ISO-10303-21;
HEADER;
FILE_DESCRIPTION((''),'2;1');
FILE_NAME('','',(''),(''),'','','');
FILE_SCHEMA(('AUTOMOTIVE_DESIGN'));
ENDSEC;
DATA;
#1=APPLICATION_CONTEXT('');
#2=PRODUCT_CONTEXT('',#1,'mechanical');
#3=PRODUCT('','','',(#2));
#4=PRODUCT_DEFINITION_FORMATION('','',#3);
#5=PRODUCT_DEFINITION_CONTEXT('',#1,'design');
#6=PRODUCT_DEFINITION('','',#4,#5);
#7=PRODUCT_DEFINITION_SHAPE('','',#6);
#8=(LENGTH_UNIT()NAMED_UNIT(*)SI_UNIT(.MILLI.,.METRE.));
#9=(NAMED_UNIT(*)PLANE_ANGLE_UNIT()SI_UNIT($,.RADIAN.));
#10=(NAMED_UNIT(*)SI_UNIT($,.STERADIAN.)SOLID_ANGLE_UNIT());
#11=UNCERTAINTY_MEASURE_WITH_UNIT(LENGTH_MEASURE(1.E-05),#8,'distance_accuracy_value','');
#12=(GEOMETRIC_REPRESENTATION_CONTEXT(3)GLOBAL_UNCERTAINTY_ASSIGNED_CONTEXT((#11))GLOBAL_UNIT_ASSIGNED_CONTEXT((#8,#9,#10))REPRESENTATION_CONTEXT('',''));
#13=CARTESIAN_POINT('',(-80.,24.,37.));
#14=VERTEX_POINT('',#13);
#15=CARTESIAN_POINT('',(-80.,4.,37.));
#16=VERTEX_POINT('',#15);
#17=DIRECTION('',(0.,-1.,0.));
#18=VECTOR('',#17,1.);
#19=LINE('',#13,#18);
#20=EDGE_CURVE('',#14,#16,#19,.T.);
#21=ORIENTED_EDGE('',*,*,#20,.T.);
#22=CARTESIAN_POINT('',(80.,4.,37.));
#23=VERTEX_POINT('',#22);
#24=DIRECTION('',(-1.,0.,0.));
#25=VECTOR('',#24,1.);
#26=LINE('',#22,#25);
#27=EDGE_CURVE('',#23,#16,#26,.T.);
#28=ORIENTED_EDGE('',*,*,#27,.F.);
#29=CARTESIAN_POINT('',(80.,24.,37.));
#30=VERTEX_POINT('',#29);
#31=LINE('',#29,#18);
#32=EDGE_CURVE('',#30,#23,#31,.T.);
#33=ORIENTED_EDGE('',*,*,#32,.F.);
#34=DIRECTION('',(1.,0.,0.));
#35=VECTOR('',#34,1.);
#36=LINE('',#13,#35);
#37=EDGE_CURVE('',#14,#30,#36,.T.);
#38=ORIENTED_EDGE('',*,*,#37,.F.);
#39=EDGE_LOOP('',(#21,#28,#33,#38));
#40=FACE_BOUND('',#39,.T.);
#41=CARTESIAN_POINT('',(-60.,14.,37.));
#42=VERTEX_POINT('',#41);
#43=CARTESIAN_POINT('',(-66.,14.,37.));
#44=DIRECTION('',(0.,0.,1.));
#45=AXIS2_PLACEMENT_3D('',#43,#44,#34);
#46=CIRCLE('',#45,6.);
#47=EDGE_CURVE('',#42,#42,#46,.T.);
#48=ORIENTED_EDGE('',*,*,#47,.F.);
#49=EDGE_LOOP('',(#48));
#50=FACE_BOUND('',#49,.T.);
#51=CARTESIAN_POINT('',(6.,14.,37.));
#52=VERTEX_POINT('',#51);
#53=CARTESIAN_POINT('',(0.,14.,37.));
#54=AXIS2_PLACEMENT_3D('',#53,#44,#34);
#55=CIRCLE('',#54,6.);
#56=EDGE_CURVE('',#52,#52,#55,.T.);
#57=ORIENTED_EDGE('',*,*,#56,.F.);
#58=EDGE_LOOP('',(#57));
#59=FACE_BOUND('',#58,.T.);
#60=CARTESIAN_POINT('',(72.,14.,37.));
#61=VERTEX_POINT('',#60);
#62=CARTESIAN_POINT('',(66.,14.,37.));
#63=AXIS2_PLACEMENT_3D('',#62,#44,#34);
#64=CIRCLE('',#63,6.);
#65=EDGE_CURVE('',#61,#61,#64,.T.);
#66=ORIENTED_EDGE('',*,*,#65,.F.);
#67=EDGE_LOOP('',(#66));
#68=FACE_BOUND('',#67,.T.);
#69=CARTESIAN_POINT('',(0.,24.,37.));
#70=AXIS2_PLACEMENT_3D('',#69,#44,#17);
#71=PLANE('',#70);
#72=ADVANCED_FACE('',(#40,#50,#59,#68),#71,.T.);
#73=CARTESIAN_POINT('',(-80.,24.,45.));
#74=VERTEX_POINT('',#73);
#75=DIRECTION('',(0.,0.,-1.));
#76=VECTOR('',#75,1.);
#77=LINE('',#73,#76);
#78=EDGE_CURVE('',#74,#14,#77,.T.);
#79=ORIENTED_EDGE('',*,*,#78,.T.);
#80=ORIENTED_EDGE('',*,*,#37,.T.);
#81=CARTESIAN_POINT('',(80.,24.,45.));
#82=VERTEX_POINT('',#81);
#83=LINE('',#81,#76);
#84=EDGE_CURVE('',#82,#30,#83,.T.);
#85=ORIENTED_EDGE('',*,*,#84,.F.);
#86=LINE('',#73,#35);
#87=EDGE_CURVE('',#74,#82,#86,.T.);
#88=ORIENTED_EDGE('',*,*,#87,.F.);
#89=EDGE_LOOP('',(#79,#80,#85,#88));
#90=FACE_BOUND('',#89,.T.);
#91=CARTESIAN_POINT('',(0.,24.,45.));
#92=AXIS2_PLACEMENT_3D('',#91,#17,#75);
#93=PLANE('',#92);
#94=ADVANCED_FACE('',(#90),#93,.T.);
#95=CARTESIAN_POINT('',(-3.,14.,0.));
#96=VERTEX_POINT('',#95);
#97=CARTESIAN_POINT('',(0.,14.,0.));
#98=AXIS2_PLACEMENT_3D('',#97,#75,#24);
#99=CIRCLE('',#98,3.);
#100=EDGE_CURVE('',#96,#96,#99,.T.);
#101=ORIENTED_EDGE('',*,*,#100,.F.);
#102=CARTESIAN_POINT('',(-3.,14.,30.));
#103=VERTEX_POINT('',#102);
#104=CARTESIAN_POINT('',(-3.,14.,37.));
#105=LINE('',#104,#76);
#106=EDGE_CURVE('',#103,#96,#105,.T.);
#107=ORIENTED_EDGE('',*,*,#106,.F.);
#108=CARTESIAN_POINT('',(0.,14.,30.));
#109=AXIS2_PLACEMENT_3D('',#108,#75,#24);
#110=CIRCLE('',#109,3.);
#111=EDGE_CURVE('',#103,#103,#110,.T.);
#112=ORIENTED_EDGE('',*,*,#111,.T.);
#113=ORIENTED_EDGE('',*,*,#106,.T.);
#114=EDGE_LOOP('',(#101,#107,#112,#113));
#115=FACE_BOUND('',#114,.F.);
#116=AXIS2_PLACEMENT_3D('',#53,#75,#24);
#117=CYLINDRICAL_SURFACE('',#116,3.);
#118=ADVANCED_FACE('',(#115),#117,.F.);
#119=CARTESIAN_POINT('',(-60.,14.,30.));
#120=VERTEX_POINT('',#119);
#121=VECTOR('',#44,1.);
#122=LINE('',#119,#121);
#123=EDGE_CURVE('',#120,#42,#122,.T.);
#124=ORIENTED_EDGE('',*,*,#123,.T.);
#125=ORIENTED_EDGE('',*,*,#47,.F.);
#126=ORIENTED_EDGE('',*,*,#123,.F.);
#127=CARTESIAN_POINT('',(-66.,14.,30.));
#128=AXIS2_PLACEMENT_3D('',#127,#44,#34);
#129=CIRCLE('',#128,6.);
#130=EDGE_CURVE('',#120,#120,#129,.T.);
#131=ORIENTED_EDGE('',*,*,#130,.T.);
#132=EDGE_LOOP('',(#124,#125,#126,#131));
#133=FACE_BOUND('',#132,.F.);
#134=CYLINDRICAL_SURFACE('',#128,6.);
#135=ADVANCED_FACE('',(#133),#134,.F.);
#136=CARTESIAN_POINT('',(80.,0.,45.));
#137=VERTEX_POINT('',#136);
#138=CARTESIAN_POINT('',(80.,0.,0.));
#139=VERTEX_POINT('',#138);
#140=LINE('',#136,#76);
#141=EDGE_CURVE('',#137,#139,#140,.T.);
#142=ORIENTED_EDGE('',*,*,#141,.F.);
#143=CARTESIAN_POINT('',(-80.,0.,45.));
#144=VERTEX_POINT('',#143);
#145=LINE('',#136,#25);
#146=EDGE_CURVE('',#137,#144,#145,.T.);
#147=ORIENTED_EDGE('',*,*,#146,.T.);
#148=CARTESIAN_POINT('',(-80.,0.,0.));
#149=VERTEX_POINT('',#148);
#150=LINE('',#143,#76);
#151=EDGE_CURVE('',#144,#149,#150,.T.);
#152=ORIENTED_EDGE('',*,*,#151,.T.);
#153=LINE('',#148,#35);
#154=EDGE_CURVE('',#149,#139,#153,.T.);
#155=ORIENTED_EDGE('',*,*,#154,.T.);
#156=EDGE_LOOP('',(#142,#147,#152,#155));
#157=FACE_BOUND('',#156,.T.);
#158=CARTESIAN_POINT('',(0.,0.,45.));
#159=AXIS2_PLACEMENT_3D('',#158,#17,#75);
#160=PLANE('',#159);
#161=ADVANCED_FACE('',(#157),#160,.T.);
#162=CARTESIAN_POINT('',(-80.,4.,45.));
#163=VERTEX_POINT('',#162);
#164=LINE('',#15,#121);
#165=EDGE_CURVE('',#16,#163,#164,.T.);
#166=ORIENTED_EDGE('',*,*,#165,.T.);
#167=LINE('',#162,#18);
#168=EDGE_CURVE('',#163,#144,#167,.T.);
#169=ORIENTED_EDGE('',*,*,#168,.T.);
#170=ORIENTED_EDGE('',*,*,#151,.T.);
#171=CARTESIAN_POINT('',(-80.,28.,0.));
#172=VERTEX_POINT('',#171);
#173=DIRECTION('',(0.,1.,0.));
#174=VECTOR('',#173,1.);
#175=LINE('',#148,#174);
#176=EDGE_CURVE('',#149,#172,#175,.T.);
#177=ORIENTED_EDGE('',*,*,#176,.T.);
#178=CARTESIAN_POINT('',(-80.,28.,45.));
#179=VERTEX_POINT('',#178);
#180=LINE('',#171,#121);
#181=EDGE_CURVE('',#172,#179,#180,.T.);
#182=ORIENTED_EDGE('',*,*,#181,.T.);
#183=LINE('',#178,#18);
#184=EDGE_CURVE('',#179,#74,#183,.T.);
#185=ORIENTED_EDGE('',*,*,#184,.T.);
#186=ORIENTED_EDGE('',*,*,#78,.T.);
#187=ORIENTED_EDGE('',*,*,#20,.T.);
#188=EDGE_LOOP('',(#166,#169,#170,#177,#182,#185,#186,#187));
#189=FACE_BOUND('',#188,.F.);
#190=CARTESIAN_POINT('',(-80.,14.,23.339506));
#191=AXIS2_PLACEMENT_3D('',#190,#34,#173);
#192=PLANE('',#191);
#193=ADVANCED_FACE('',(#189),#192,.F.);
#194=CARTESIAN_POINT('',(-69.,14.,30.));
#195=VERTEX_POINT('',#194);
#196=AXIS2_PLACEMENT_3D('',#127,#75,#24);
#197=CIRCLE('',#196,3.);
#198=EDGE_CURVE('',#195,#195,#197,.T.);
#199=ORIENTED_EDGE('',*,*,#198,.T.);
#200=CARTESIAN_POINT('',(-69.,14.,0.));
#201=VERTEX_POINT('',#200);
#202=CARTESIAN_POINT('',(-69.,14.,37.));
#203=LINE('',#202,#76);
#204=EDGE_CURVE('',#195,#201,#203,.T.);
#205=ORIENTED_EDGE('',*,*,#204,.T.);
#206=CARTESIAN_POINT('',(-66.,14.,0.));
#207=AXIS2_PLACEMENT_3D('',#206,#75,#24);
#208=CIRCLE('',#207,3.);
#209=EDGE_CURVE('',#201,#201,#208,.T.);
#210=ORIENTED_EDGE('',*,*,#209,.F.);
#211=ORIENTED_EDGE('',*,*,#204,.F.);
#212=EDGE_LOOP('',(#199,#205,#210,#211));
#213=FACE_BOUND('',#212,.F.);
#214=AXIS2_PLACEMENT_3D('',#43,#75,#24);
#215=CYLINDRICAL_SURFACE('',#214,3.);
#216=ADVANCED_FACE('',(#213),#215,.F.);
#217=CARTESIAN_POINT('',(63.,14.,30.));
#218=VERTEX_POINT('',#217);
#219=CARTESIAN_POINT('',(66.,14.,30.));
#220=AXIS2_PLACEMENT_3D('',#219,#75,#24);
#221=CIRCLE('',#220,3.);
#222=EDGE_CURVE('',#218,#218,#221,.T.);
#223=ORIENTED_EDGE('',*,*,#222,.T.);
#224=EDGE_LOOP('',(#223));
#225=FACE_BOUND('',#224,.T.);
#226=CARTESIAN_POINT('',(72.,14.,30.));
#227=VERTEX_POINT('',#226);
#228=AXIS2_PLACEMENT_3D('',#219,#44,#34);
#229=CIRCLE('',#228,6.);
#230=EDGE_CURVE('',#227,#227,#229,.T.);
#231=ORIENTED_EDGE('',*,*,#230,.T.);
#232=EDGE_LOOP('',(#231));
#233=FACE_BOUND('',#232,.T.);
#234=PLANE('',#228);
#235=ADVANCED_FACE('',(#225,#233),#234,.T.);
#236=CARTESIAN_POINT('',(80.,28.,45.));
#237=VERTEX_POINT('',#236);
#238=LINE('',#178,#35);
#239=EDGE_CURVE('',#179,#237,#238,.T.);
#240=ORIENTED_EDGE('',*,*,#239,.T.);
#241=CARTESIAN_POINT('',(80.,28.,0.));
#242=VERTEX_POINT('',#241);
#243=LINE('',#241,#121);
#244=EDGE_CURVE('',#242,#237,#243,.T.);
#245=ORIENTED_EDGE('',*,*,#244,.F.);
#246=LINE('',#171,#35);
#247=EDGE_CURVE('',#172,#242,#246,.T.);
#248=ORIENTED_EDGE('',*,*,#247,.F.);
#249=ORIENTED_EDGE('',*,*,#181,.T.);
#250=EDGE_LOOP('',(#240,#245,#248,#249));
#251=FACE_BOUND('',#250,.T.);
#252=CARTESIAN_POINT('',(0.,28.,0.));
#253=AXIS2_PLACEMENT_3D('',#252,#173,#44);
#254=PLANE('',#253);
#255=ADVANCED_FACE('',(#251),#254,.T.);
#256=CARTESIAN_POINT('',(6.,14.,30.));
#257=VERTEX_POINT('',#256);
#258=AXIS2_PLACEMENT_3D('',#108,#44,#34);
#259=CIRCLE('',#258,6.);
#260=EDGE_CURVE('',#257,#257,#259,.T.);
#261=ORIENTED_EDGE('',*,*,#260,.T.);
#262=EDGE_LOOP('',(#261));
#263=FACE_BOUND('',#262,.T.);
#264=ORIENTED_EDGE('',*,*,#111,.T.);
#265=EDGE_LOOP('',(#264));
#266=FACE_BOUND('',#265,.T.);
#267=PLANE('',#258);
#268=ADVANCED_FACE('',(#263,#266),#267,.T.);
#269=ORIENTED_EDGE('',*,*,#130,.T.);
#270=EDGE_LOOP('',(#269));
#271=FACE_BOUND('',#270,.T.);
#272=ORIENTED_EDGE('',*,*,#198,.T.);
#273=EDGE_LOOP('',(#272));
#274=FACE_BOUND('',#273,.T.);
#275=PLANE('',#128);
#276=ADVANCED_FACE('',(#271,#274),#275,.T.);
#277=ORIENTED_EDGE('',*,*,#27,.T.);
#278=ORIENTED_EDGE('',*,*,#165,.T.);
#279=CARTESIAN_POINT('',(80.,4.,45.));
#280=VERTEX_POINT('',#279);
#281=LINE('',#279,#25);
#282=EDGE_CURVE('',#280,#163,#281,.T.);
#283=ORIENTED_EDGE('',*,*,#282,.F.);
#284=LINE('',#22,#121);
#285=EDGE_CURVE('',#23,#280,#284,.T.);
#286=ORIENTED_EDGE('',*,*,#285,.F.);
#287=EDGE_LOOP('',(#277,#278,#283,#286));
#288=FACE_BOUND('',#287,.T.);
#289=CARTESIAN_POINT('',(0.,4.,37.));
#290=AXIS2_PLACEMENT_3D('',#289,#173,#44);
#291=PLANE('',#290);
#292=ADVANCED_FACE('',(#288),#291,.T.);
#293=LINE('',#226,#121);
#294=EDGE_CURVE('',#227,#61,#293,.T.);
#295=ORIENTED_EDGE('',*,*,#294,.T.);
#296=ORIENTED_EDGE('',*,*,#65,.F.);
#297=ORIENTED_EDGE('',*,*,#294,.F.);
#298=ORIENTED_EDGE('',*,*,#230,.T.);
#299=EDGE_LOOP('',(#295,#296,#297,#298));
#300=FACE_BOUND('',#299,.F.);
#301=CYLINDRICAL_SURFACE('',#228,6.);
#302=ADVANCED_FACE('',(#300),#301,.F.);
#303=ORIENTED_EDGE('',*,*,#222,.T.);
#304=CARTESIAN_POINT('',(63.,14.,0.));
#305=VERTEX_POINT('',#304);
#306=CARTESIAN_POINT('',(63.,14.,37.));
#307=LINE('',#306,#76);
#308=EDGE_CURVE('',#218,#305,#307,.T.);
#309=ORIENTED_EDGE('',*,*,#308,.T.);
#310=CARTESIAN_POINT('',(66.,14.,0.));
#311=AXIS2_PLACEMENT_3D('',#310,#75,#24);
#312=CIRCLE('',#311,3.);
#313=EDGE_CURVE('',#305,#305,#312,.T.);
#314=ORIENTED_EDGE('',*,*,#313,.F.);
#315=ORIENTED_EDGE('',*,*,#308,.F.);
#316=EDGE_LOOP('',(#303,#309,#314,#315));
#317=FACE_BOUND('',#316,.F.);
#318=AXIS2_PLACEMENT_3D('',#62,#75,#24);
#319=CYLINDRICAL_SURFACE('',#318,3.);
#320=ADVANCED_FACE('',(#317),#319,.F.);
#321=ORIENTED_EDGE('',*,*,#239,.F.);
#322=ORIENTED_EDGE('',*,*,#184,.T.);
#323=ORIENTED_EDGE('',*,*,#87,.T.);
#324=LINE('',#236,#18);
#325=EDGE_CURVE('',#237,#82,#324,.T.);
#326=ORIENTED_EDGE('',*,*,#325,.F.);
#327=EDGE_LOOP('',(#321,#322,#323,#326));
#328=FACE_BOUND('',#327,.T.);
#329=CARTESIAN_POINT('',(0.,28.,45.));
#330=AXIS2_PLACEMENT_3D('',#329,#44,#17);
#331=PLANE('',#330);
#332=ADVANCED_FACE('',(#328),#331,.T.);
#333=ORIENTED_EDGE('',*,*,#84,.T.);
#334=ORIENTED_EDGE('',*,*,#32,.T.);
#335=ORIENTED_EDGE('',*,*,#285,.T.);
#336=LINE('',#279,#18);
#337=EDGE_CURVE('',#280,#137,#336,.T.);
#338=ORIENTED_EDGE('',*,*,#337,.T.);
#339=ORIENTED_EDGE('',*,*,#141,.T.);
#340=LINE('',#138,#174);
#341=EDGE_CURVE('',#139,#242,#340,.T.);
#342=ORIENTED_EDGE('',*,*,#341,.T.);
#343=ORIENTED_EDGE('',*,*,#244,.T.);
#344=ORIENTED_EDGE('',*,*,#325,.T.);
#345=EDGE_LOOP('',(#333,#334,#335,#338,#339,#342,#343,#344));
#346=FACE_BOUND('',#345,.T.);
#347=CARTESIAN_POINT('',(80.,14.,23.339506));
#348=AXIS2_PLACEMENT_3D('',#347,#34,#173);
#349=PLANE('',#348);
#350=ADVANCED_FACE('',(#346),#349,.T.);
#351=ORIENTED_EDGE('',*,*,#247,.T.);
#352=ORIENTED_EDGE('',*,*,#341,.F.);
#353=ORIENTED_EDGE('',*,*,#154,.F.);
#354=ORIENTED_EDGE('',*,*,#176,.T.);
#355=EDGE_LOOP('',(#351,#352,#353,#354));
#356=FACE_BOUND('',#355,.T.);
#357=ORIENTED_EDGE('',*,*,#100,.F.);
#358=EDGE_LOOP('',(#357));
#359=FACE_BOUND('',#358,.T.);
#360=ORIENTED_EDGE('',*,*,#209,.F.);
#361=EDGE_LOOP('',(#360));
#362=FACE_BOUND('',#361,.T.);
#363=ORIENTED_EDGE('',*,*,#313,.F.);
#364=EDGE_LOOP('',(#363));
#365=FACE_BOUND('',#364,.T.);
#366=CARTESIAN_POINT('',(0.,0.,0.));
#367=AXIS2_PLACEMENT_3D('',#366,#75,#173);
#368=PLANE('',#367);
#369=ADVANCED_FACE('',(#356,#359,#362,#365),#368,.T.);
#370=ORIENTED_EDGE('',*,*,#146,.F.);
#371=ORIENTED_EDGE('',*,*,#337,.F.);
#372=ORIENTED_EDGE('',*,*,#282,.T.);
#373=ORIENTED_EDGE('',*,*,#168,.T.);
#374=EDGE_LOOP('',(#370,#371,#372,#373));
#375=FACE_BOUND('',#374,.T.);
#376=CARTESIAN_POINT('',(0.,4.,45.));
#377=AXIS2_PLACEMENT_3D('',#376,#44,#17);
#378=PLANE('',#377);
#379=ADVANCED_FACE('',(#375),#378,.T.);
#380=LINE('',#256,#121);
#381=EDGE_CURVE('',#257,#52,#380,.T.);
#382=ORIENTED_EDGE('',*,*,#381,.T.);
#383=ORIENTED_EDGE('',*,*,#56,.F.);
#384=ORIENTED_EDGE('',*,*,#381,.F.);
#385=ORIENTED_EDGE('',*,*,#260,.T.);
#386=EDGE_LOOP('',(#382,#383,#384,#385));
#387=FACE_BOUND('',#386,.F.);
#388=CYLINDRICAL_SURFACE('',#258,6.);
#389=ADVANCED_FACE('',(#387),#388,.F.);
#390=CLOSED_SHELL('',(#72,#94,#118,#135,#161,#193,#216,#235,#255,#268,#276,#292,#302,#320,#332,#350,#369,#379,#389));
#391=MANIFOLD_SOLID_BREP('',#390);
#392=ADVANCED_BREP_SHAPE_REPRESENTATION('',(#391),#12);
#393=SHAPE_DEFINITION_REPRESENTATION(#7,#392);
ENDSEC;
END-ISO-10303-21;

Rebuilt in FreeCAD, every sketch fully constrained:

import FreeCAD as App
import Part
import Sketcher

V = App.Vector
Q = App.Units.Quantity

doc = App.newDocument("Part")
body = doc.addObject("PartDesign::Body", "Body")

# Sketch on YZ plane
sketch1 = doc.addObject("Sketcher::SketchObject", "Sketch")
body.addObject(sketch1)
sketch1.AttachmentSupport = (doc.YZ_Plane, [""])
sketch1.MapMode = "FlatFace"
sketch1.addGeometry([
    Part.LineSegment(V(0, 45, 0), V(0, 0, 0)),  # 0
    Part.LineSegment(V(0, 0, 0), V(28, 0, 0)),  # 1
    Part.LineSegment(V(28, 0, 0), V(28, 45, 0)),  # 2
    Part.LineSegment(V(28, 45, 0), V(24, 45, 0)),  # 3
    Part.LineSegment(V(24, 45, 0), V(24, 37, 0)),  # 4
    Part.LineSegment(V(24, 37, 0), V(4, 37, 0)),  # 5
    Part.LineSegment(V(4, 37, 0), V(4, 45, 0)),  # 6
    Part.LineSegment(V(4, 45, 0), V(0, 45, 0)),  # 7
], False)
sketch1.addConstraint([
    Sketcher.Constraint("Coincident", 0, 2, 1, 1),
    Sketcher.Constraint("Coincident", 1, 2, 2, 1),
    Sketcher.Constraint("Coincident", 2, 2, 3, 1),
    Sketcher.Constraint("Coincident", 3, 2, 4, 1),
    Sketcher.Constraint("Coincident", 4, 2, 5, 1),
    Sketcher.Constraint("Coincident", 5, 2, 6, 1),
    Sketcher.Constraint("Coincident", 6, 2, 7, 1),
    Sketcher.Constraint("Coincident", 7, 2, 0, 1),
    Sketcher.Constraint("Vertical", 0),
    Sketcher.Constraint("Horizontal", 1),
    Sketcher.Constraint("Vertical", 2),
    Sketcher.Constraint("Horizontal", 3),
    Sketcher.Constraint("Vertical", 4),
    Sketcher.Constraint("Horizontal", 5),
    Sketcher.Constraint("Vertical", 6),
    Sketcher.Constraint("Horizontal", 7),
    Sketcher.Constraint("Coincident", 0, 2, -1, 1),
    Sketcher.Constraint("Horizontal", 3, 2, 6, 2),
    Sketcher.Constraint("Equal", 3, 7),
    Sketcher.Constraint("DistanceX", 1, 1, 1, 2, Q("28 mm")),
    Sketcher.Constraint("DistanceX", 3, 2, 3, 1, Q("4 mm")),
    Sketcher.Constraint("DistanceY", 0, 2, 0, 1, Q("45 mm")),
    Sketcher.Constraint("DistanceY", 4, 2, 4, 1, Q("8 mm")),
])
pad1 = doc.addObject("PartDesign::Pad", "Pad")
body.addObject(pad1)
pad1.Profile = sketch1
pad1.Type = "TwoLengths"
pad1.Length = 80
pad1.Length2 = 80

# Sketch on XY plane
sketch2 = doc.addObject("Sketcher::SketchObject", "Sketch001")
body.addObject(sketch2)
sketch2.AttachmentSupport = (doc.XY_Plane, [""])
sketch2.MapMode = "FlatFace"
sketch2.AttachmentOffset = App.Placement(V(0, 0, 37), App.Rotation())
sketch2.addGeometry([
    Part.Circle(V(-66, 14, 0), V(0, 0, 1), 3),
    Part.Circle(V(0, 14, 0), V(0, 0, 1), 3),
    Part.Circle(V(66, 14, 0), V(0, 0, 1), 3),
], False)
sketch2.addConstraint([
    Sketcher.Constraint("Equal", 0, 1),
    Sketcher.Constraint("Equal", 1, 2),
    Sketcher.Constraint("Symmetric", 0, 3, 2, 3, -2),
    Sketcher.Constraint("PointOnObject", 1, 3, -2),
    Sketcher.Constraint("Horizontal", 0, 3, 1, 3),
    Sketcher.Constraint("Diameter", 0, Q("6 mm")),
    Sketcher.Constraint("DistanceX", 0, 3, -1, 1, Q("66 mm")),
    Sketcher.Constraint("DistanceY", -1, 1, 0, 3, Q("14 mm")),
])
doc.recompute()
hole = doc.addObject("PartDesign::Hole", "Hole")
body.addObject(hole)
hole.Profile = sketch2
hole.ThreadType = "None"
hole.Diameter = 6
hole.DepthType = "Dimension"
hole.Depth = 38
hole.DrillPoint = "Flat"
hole.HoleCutType = "Counterbore"
hole.HoleCutDiameter = 12
hole.HoleCutDepth = 7

doc.recompute()
